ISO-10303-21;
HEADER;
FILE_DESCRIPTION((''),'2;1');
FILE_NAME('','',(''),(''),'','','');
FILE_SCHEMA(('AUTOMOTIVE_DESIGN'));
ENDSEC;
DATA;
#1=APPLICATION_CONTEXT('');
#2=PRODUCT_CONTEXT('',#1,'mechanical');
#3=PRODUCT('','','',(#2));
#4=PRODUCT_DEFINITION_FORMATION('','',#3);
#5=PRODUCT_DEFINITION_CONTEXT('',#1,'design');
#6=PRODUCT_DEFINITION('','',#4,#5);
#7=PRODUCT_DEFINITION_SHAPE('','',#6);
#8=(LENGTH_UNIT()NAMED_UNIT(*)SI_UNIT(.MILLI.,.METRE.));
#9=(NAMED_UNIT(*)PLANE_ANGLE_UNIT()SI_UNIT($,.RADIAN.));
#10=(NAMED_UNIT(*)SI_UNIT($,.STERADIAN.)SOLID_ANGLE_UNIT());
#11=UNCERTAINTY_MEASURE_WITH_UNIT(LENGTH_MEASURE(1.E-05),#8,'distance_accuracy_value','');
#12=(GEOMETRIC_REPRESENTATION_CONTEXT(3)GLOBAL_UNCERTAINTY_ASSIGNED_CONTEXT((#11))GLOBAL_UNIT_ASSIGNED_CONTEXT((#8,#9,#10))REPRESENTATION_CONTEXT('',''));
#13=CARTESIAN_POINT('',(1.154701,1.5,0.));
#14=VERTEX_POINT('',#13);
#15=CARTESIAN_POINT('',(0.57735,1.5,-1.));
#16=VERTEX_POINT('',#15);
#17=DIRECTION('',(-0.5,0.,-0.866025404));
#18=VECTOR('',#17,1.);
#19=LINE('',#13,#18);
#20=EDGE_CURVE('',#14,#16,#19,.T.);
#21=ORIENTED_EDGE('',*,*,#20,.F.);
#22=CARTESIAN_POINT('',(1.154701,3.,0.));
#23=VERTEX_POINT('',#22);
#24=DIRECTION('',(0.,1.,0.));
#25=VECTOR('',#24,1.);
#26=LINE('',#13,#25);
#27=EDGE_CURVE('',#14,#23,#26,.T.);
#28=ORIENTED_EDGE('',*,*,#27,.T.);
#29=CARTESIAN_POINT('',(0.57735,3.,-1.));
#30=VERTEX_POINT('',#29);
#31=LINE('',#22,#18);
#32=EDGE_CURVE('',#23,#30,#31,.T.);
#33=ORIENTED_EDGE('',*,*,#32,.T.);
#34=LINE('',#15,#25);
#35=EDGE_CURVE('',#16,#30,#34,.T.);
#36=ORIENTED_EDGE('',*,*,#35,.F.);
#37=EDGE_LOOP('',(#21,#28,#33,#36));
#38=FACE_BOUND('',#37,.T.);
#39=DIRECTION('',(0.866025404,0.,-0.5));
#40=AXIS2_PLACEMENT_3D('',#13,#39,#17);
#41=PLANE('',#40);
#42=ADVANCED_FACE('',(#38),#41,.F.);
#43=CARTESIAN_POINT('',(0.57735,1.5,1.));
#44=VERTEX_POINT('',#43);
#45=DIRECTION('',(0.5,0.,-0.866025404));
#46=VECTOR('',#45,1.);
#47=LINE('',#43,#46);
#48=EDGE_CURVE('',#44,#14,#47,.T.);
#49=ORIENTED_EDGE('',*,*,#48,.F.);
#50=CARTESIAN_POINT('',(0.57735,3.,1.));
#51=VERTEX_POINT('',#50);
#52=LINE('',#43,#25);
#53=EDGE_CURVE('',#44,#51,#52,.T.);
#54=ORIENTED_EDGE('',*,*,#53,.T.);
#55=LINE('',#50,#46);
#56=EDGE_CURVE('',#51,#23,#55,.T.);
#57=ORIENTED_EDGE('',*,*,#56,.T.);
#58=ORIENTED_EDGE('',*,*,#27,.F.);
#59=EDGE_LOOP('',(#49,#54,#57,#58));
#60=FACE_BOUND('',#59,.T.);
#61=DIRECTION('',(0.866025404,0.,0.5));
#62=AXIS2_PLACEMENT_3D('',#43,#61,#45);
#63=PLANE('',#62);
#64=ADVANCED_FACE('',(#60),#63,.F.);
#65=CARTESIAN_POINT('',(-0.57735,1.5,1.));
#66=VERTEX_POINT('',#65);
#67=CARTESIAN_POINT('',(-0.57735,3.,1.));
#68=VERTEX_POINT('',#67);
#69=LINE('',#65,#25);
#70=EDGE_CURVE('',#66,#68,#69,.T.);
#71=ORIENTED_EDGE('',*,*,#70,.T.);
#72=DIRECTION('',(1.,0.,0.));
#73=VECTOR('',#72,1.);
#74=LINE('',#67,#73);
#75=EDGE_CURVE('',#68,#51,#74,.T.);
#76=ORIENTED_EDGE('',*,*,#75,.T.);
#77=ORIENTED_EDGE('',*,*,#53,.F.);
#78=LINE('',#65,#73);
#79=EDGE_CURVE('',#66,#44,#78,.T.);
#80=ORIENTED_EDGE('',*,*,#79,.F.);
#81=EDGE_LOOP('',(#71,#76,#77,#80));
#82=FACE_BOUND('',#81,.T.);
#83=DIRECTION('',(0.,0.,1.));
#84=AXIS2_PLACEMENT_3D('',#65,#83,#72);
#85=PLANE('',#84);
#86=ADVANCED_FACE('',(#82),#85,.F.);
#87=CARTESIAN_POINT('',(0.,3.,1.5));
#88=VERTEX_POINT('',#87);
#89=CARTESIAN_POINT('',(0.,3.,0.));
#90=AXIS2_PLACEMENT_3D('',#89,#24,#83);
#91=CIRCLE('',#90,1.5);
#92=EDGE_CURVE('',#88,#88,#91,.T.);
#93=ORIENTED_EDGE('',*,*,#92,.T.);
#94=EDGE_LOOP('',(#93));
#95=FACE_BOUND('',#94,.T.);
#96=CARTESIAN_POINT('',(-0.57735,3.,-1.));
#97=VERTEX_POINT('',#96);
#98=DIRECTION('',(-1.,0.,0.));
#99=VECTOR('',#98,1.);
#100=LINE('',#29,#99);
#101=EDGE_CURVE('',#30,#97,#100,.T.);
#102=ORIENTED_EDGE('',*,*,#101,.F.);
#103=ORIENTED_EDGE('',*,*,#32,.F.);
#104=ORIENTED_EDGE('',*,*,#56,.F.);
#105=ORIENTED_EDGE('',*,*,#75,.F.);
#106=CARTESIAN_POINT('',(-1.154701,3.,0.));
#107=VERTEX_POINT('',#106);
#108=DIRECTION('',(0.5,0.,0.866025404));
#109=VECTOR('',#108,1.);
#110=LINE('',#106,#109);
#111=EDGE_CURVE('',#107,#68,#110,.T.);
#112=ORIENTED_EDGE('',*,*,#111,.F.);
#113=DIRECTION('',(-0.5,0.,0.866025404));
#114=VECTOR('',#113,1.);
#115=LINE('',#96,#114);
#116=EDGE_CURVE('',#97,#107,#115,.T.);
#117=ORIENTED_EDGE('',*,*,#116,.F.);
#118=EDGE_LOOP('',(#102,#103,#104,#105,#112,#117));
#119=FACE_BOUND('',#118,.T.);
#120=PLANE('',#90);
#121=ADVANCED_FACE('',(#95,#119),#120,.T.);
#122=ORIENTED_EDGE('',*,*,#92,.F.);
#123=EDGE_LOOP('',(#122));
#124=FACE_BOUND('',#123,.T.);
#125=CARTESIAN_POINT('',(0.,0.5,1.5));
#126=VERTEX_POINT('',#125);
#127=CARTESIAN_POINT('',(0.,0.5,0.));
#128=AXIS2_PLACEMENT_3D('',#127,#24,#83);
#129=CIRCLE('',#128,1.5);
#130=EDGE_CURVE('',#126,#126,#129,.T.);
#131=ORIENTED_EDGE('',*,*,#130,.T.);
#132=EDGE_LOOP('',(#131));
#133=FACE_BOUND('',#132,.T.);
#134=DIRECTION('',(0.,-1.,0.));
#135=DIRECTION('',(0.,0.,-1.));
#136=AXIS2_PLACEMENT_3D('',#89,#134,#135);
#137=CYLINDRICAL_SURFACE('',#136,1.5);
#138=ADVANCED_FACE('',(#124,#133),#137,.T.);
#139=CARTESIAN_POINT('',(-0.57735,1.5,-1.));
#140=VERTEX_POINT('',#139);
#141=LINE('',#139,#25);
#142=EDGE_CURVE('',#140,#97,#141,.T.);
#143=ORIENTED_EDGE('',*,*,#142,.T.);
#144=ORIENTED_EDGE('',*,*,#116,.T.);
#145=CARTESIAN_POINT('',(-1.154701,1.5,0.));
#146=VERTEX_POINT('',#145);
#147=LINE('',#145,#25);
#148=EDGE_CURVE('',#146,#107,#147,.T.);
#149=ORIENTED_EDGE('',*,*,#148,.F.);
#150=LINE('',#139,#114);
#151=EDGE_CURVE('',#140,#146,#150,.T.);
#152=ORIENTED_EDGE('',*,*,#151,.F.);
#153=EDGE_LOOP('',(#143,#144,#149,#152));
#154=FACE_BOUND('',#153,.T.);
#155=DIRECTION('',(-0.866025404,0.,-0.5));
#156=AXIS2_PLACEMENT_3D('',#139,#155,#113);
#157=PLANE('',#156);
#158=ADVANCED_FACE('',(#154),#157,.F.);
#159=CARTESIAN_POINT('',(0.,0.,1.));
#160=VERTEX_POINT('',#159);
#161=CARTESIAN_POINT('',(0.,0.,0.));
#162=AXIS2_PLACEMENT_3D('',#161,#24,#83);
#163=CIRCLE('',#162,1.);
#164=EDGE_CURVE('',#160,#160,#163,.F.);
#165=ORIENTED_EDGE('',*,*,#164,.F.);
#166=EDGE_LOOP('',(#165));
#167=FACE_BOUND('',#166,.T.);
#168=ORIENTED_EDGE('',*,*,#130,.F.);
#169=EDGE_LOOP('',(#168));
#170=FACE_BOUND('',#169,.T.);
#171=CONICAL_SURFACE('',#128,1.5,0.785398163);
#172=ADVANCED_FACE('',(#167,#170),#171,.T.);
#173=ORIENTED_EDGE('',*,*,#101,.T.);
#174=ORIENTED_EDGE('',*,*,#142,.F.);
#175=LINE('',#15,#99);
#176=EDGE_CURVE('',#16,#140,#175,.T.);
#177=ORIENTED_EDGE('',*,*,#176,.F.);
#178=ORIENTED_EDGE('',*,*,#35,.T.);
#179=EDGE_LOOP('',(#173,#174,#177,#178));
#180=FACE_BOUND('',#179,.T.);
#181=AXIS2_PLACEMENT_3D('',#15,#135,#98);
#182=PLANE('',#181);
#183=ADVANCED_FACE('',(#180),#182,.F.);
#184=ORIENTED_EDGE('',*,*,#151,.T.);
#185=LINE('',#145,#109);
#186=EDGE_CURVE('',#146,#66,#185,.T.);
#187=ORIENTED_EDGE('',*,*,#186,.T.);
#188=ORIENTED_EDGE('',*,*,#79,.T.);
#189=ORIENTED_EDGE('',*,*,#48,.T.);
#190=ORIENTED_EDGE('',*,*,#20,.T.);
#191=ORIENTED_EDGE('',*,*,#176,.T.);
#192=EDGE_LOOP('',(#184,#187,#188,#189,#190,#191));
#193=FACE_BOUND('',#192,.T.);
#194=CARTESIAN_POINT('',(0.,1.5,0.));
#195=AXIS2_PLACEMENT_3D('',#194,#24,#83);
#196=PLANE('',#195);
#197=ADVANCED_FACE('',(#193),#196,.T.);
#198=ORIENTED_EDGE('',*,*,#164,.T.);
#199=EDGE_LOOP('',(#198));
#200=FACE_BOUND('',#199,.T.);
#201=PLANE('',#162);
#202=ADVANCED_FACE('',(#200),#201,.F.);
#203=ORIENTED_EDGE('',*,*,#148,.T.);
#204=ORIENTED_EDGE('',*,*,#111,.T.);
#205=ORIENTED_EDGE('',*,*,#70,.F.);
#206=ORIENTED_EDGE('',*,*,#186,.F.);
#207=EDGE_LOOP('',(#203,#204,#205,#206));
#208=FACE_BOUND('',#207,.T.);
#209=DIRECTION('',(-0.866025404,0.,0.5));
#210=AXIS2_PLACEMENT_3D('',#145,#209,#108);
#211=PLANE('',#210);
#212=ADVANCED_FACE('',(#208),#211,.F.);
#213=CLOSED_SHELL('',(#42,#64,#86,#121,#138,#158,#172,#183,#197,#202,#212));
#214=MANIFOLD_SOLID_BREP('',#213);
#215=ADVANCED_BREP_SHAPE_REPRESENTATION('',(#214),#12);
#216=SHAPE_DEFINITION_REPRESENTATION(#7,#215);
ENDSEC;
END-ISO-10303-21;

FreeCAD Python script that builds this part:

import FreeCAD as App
import Part
import Sketcher
Q = App.Units.Quantity


def edges_at(feature, points):
    """Names of the edges that pass closest to the given points."""
    edges = feature.Shape.Edges
    near = lambda p: min(range(len(edges)), key=lambda i: edges[i].distToShape(Part.Vertex(*p))[0])
    return sorted({f"Edge{near(p) + 1}" for p in points})


def add_polygon(sketch, points):
    """Adds a closed chain of lines whose ends are joined by coincident constraints."""
    first, n = sketch.GeometryCount, len(points)
    for a, b in zip(points, points[1:] + points[:1]):
        sketch.addGeometry(Part.LineSegment(App.Vector(*a, 0), App.Vector(*b, 0)), False)
    for i in range(n):
        sketch.addConstraint(Sketcher.Constraint("Coincident", first + i, 2, first + (i + 1) % n, 1))

doc = App.newDocument("Part")
body = doc.addObject("PartDesign::Body", "Body")

sketch1 = doc.addObject("Sketcher::SketchObject", "Sketch")
body.addObject(sketch1)
sketch1.AttachmentSupport = (doc.XZ_Plane, [""])
sketch1.MapMode = "FlatFace"
sketch1.addGeometry(Part.Circle(App.Vector(0, 0, 0), App.Vector(0, 0, 1), 1.5), False)
sketch1.addConstraint(Sketcher.Constraint("Coincident", 0, 3, -1, 1))
sketch1.addConstraint(Sketcher.Constraint("Diameter", 0, Q("3 mm")))
pad1 = doc.addObject("PartDesign::Pad", "Pad")
body.addObject(pad1)
pad1.Profile = sketch1
pad1.Length = 3
pad1.Reversed = True
doc.recompute()

chamfer = doc.addObject("PartDesign::Chamfer", "Chamfer")
body.addObject(chamfer)
chamfer.Base = (pad1, edges_at(pad1, [(-1.5, 0, 0)]))
chamfer.Size = 0.5

sketch2 = doc.addObject("Sketcher::SketchObject", "Sketch001")
body.addObject(sketch2)
sketch2.AttachmentSupport = (doc.XZ_Plane, [""])
sketch2.MapMode = "FlatFace"
sketch2.AttachmentOffset = App.Placement(App.Vector(0, 0, -3), App.Rotation())
add_polygon(sketch2, [(0.6, 1), (1.2, 0), (0.6, -1), (-0.6, -1), (-1.2, 0), (-0.6, 1)])
sketch2.addConstraint(Sketcher.Constraint("Horizontal", 2))
sketch2.addConstraint(Sketcher.Constraint("Horizontal", 5))
sketch2.addConstraint(Sketcher.Constraint("Symmetric", 0, 2, 3, 2, -1, 1))
sketch2.addConstraint(Sketcher.Constraint("Symmetric", 1, 2, 4, 2, -1, 1))
sketch2.addConstraint(Sketcher.Constraint("PointOnObject", 0, 2, -1))
sketch2.addConstraint(Sketcher.Constraint("Parallel", 0, 3))
sketch2.addConstraint(Sketcher.Constraint("Vertical", 2, 2, 4, 2))
sketch2.addConstraint(Sketcher.Constraint("Angle", 0, Q("-60 deg")))
sketch2.addConstraint(Sketcher.Constraint("DistanceY", 1, 2, -1, 1, Q("1 mm")))
sketch2.addConstraint(Sketcher.Constraint("DistanceX", 2, 2, 2, 1, Q("1.154701 mm")))
pocket1 = doc.addObject("PartDesign::Pocket", "Pocket")
body.addObject(pocket1)
pocket1.Profile = sketch2
pocket1.Length = 1.5
pocket1.Reversed = True

doc.recompute()
